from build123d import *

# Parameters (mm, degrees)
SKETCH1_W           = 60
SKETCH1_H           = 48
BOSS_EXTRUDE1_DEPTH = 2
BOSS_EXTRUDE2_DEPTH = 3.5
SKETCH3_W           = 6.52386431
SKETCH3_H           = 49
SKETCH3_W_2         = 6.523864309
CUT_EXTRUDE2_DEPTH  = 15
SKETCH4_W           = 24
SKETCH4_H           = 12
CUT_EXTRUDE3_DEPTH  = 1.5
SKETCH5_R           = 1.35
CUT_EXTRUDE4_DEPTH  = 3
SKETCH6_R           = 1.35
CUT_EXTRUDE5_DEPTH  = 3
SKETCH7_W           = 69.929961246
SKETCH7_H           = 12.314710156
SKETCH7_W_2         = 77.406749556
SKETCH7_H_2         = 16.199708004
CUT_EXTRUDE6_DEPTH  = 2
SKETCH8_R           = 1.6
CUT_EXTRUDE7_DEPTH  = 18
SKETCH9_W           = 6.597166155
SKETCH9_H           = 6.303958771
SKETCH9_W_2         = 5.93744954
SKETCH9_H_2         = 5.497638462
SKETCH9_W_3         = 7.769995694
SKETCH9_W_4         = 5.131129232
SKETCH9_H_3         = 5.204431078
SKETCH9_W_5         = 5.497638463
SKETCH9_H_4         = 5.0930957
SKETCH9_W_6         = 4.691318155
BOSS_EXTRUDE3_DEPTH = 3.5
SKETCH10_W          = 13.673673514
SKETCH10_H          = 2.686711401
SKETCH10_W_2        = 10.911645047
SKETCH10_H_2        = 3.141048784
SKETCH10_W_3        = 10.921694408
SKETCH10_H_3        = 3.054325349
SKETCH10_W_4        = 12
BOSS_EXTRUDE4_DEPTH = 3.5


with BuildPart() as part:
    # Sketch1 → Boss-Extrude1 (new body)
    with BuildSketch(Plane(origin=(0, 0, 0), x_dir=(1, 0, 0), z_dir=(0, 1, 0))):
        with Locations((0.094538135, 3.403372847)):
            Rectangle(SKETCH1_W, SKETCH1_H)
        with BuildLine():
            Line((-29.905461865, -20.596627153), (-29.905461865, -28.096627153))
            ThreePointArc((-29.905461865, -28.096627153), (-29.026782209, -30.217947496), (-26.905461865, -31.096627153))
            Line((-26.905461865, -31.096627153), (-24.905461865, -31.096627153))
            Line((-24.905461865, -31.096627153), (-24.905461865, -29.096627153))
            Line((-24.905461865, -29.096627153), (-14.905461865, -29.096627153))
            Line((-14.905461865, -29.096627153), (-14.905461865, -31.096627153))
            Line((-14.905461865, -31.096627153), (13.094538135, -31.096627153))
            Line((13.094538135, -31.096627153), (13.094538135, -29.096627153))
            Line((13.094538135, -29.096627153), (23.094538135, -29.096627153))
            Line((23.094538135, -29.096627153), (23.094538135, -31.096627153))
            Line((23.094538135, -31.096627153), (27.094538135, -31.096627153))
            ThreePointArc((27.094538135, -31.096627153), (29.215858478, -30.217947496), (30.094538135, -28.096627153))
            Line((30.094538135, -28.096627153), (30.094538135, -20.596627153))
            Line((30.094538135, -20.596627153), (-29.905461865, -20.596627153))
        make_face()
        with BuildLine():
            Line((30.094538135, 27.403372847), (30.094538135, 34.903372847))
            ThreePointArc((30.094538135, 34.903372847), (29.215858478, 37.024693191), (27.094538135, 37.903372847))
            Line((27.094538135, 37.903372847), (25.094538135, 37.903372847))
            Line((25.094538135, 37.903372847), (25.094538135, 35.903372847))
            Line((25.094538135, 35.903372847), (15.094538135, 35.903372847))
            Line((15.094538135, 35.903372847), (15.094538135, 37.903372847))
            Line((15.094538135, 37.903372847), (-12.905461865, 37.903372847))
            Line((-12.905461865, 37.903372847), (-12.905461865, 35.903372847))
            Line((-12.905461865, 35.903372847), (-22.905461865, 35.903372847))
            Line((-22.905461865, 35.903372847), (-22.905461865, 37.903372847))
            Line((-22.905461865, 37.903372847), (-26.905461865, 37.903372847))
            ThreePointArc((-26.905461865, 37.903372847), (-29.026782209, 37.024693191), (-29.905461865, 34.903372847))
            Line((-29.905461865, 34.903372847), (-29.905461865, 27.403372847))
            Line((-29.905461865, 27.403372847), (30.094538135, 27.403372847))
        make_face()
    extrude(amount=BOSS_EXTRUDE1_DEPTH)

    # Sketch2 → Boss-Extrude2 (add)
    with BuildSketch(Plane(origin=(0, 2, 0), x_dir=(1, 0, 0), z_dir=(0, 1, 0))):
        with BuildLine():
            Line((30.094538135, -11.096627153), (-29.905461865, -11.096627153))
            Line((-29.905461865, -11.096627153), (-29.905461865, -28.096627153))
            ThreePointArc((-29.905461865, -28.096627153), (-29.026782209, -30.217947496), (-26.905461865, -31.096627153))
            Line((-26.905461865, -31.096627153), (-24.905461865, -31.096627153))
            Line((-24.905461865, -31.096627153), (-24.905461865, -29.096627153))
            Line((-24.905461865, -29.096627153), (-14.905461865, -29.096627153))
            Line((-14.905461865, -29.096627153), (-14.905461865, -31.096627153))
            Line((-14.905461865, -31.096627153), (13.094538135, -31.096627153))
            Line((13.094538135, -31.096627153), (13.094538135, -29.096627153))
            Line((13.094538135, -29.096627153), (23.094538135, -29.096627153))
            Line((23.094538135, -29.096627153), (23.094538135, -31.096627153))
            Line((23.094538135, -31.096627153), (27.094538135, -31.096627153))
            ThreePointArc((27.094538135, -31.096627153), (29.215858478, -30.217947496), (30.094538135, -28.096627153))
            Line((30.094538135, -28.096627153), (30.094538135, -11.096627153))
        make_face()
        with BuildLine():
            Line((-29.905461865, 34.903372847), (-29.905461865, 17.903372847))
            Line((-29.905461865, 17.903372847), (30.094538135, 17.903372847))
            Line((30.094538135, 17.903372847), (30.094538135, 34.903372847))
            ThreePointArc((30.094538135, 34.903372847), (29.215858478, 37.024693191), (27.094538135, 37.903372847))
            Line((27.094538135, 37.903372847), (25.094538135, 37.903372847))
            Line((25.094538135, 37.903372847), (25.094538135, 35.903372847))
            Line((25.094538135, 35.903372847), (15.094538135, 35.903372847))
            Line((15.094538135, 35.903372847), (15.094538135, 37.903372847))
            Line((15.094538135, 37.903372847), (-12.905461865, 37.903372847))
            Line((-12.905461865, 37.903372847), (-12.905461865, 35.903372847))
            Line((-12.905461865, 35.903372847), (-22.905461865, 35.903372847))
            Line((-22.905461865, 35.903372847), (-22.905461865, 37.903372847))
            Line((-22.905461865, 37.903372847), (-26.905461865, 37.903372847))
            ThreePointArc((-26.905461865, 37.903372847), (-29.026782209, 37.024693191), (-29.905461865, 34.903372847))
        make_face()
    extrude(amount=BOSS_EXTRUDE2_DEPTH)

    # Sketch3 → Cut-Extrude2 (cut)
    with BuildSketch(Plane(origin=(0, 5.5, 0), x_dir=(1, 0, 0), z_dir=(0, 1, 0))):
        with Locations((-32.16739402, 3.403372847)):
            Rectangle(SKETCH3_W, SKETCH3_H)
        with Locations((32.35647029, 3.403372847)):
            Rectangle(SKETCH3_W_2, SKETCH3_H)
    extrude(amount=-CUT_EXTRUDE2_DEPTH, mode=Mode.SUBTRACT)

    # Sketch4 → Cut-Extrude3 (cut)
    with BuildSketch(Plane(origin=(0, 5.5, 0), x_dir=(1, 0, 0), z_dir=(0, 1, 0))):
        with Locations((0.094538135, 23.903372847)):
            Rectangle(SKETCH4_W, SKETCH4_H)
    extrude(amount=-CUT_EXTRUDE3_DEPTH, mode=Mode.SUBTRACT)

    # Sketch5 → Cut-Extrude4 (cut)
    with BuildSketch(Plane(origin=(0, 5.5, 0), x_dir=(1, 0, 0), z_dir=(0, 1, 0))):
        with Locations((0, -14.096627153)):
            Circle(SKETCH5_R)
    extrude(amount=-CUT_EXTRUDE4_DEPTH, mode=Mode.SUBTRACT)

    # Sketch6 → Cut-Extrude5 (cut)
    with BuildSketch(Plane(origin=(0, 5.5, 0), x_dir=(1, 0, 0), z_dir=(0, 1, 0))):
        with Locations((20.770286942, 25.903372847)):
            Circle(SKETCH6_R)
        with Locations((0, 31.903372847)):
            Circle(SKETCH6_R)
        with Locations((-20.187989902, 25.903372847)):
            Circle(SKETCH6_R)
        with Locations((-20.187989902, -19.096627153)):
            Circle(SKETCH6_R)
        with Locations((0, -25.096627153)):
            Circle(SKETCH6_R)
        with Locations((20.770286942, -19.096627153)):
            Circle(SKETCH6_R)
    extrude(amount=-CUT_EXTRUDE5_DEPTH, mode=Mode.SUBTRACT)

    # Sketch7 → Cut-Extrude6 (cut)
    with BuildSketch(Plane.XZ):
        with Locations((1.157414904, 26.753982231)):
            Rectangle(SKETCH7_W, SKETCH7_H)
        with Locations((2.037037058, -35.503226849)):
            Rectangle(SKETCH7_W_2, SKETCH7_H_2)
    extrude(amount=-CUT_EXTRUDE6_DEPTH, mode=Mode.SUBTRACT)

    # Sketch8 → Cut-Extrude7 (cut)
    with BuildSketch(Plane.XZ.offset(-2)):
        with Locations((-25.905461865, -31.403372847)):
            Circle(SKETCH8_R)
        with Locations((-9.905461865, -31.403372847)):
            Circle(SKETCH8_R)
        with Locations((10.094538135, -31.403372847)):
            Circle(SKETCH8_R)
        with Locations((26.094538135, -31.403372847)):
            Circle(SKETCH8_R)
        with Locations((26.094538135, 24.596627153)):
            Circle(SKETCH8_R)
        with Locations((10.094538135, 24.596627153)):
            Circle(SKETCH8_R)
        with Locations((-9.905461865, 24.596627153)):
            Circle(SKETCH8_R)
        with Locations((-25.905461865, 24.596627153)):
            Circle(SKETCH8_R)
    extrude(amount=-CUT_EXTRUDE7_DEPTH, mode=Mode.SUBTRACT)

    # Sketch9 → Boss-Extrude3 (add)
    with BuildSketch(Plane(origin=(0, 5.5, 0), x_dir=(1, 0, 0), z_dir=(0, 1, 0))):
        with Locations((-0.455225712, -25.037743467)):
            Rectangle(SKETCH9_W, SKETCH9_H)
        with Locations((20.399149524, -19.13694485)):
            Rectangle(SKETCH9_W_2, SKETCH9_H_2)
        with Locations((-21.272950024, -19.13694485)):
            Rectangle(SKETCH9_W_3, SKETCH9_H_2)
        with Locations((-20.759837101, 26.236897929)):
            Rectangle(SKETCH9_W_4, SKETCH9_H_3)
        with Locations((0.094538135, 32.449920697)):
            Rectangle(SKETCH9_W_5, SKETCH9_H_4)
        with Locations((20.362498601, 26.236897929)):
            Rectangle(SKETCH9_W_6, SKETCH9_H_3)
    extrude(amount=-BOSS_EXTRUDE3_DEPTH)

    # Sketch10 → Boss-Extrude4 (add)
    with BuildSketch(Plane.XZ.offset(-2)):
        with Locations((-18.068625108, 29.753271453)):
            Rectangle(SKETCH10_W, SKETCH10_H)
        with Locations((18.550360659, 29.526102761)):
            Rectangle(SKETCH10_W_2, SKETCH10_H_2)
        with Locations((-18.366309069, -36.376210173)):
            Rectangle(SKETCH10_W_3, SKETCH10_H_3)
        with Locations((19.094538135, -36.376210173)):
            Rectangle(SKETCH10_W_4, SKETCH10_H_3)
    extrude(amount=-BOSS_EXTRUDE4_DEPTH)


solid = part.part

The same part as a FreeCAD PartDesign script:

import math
import FreeCAD as App
import Part
import Sketcher

V = App.Vector
Q = App.Units.Quantity

doc = App.newDocument("Part")
body = doc.addObject("PartDesign::Body", "Body")

# Sketch on XZ plane
sketch1 = body.newObject("Sketcher::SketchObject", "Sketch")
sketch1.AttachmentSupport = (doc.getObject("XZ_Plane"), [""])
sketch1.MapMode = "FlatFace"
sketch1.addGeometry(Part.ArcOfCircle(Part.Circle(V(-26.9, 28.1, 0), V(0, 0, 1), 3), math.radians(90), math.radians(180)), False)
sketch1.addGeometry(Part.LineSegment(V(-26.9, 31.1, 0), V(-24.9, 31.1, 0)), False)
sketch1.addGeometry(Part.LineSegment(V(-24.9, 31.1, 0), V(-24.9, 29.1, 0)), False)
sketch1.addGeometry(Part.LineSegment(V(-24.9, 29.1, 0), V(-14.9, 29.1, 0)), False)
sketch1.addGeometry(Part.LineSegment(V(-14.9, 29.1, 0), V(-14.9, 31.1, 0)), False)
sketch1.addGeometry(Part.LineSegment(V(-14.9, 31.1, 0), V(13.1, 31.1, 0)), False)
sketch1.addGeometry(Part.LineSegment(V(13.1, 31.1, 0), V(13.1, 29.1, 0)), False)
sketch1.addGeometry(Part.LineSegment(V(13.1, 29.1, 0), V(23.1, 29.1, 0)), False)
sketch1.addGeometry(Part.LineSegment(V(23.1, 29.1, 0), V(23.1, 31.1, 0)), False)
sketch1.addGeometry(Part.LineSegment(V(23.1, 31.1, 0), V(27.1, 31.1, 0)), False)
sketch1.addGeometry(Part.ArcOfCircle(Part.Circle(V(27.1, 28.1, 0), V(0, 0, 1), 3), math.radians(0), math.radians(90)), False)
sketch1.addGeometry(Part.LineSegment(V(30.1, 28.1, 0), V(30.1, -34.9, 0)), False)
sketch1.addGeometry(Part.ArcOfCircle(Part.Circle(V(27.1, -34.9, 0), V(0, 0, 1), 3), math.radians(-90), math.radians(0)), False)
sketch1.addGeometry(Part.LineSegment(V(27.1, -37.9, 0), V(25.1, -37.9, 0)), False)
sketch1.addGeometry(Part.LineSegment(V(25.1, -37.9, 0), V(25.1, -35.9, 0)), False)
sketch1.addGeometry(Part.LineSegment(V(25.1, -35.9, 0), V(15.1, -35.9, 0)), False)
sketch1.addGeometry(Part.LineSegment(V(15.1, -35.9, 0), V(15.1, -37.9, 0)), False)
sketch1.addGeometry(Part.LineSegment(V(15.1, -37.9, 0), V(-12.9, -37.9, 0)), False)
sketch1.addGeometry(Part.LineSegment(V(-12.9, -37.9, 0), V(-12.9, -35.9, 0)), False)
sketch1.addGeometry(Part.LineSegment(V(-12.9, -35.9, 0), V(-22.9, -35.9, 0)), False)
sketch1.addGeometry(Part.LineSegment(V(-22.9, -35.9, 0), V(-22.9, -37.9, 0)), False)
sketch1.addGeometry(Part.LineSegment(V(-22.9, -37.9, 0), V(-26.9, -37.9, 0)), False)
sketch1.addGeometry(Part.ArcOfCircle(Part.Circle(V(-26.9, -34.9, 0), V(0, 0, 1), 3), math.radians(180), math.radians(270)), False)
sketch1.addGeometry(Part.LineSegment(V(-29.9, -34.9, 0), V(-29.9, 28.1, 0)), False)
sketch1.addConstraint(Sketcher.Constraint("Tangent", 0, 1, 1, 1))
sketch1.addConstraint(Sketcher.Constraint("Coincident", 1, 2, 2, 1))
sketch1.addConstraint(Sketcher.Constraint("Coincident", 2, 2, 3, 1))
sketch1.addConstraint(Sketcher.Constraint("Coincident", 3, 2, 4, 1))
sketch1.addConstraint(Sketcher.Constraint("Coincident", 4, 2, 5, 1))
sketch1.addConstraint(Sketcher.Constraint("Coincident", 5, 2, 6, 1))
sketch1.addConstraint(Sketcher.Constraint("Coincident", 6, 2, 7, 1))
sketch1.addConstraint(Sketcher.Constraint("Coincident", 7, 2, 8, 1))
sketch1.addConstraint(Sketcher.Constraint("Coincident", 8, 2, 9, 1))
sketch1.addConstraint(Sketcher.Constraint("Tangent", 9, 2, 10, 2))
sketch1.addConstraint(Sketcher.Constraint("Tangent", 10, 1, 11, 1))
sketch1.addConstraint(Sketcher.Constraint("Tangent", 11, 2, 12, 2))
sketch1.addConstraint(Sketcher.Constraint("Tangent", 12, 1, 13, 1))
sketch1.addConstraint(Sketcher.Constraint("Coincident", 13, 2, 14, 1))
sketch1.addConstraint(Sketcher.Constraint("Coincident", 14, 2, 15, 1))
sketch1.addConstraint(Sketcher.Constraint("Coincident", 15, 2, 16, 1))
sketch1.addConstraint(Sketcher.Constraint("Coincident", 16, 2, 17, 1))
sketch1.addConstraint(Sketcher.Constraint("Coincident", 17, 2, 18, 1))
sketch1.addConstraint(Sketcher.Constraint("Coincident", 18, 2, 19, 1))
sketch1.addConstraint(Sketcher.Constraint("Coincident", 19, 2, 20, 1))
sketch1.addConstraint(Sketcher.Constraint("Coincident", 20, 2, 21, 1))
sketch1.addConstraint(Sketcher.Constraint("Tangent", 21, 2, 22, 2))
sketch1.addConstraint(Sketcher.Constraint("Tangent", 22, 1, 23, 1))
sketch1.addConstraint(Sketcher.Constraint("Tangent", 23, 2, 0, 2))
sketch1.addConstraint(Sketcher.Constraint("Horizontal", 1))
sketch1.addConstraint(Sketcher.Constraint("Vertical", 2))
sketch1.addConstraint(Sketcher.Constraint("Horizontal", 3))
sketch1.addConstraint(Sketcher.Constraint("Vertical", 4))
sketch1.addConstraint(Sketcher.Constraint("Horizontal", 5))
sketch1.addConstraint(Sketcher.Constraint("Vertical", 6))
sketch1.addConstraint(Sketcher.Constraint("Horizontal", 7))
sketch1.addConstraint(Sketcher.Constraint("Vertical", 8))
sketch1.addConstraint(Sketcher.Constraint("Horizontal", 9))
sketch1.addConstraint(Sketcher.Constraint("Vertical", 11))
sketch1.addConstraint(Sketcher.Constraint("Horizontal", 13))
sketch1.addConstraint(Sketcher.Constraint("Vertical", 14))
sketch1.addConstraint(Sketcher.Constraint("Horizontal", 15))
sketch1.addConstraint(Sketcher.Constraint("Vertical", 16))
sketch1.addConstraint(Sketcher.Constraint("Horizontal", 17))
sketch1.addConstraint(Sketcher.Constraint("Vertical", 18))
sketch1.addConstraint(Sketcher.Constraint("Horizontal", 19))
sketch1.addConstraint(Sketcher.Constraint("Vertical", 20))
sketch1.addConstraint(Sketcher.Constraint("Horizontal", 21))
sketch1.addConstraint(Sketcher.Constraint("Vertical", 23))
sketch1.addConstraint(Sketcher.Constraint("Equal", 0, 10))
sketch1.addConstraint(Sketcher.Constraint("Equal", 10, 12))
sketch1.addConstraint(Sketcher.Constraint("Equal", 12, 22))
sketch1.addConstraint(Sketcher.Constraint("Horizontal", 0, 3, 10, 3))
sketch1.addConstraint(Sketcher.Constraint("Horizontal", 12, 3, 22, 3))
sketch1.addConstraint(Sketcher.Constraint("Horizontal", 1, 2, 4, 2))
sketch1.addConstraint(Sketcher.Constraint("Horizontal", 3, 2, 6, 2))
sketch1.addConstraint(Sketcher.Constraint("Horizontal", 13, 2, 16, 2))
sketch1.addConstraint(Sketcher.Constraint("Horizontal", 15, 2, 18, 2))
sketch1.addConstraint(Sketcher.Constraint("Equal", 3, 7))
sketch1.addConstraint(Sketcher.Constraint("Equal", 1, 13))
sketch1.addConstraint(Sketcher.Constraint("Equal", 7, 15))
sketch1.addConstraint(Sketcher.Constraint("Equal", 5, 17))
sketch1.addConstraint(Sketcher.Constraint("Equal", 15, 19))
sketch1.addConstraint(Sketcher.Constraint("Equal", 13, 2))
sketch1.addConstraint(Sketcher.Constraint("Equal", 8, 14))
sketch1.addConstraint(Sketcher.Constraint("Radius", 0, Q("3 mm")))
sketch1.addConstraint(Sketcher.Constraint("DistanceX", 1, 1, 1, 2, Q("2 mm")))
sketch1.addConstraint(Sketcher.Constraint("DistanceX", 3, 1, 3, 2, Q("10 mm")))
sketch1.addConstraint(Sketcher.Constraint("DistanceX", 5, 1, 5, 2, Q("28 mm")))
sketch1.addConstraint(Sketcher.Constraint("DistanceX", 9, 1, 9, 2, Q("4 mm")))
sketch1.addConstraint(Sketcher.Constraint("DistanceY", 11, 2, 11, 1, Q("63 mm")))
sketch1.addConstraint(Sketcher.Constraint("DistanceX", 0, 3, -1, 1, Q("26.905462 mm")))
sketch1.addConstraint(Sketcher.Constraint("DistanceY", -1, 1, 0, 3, Q("28.096627 mm")))
pad1 = body.newObject("PartDesign::Pad", "Pad")
pad1.Profile = sketch1
pad1.Length = 2
pad1.Reversed = True

# Sketch on XZ plane
sketch2 = body.newObject("Sketcher::SketchObject", "Sketch001")
sketch2.AttachmentSupport = (doc.getObject("XZ_Plane"), [""])
sketch2.MapMode = "FlatFace"
sketch2.AttachmentOffset = App.Placement(V(0, 0, -2), App.Rotation())
sketch2.addGeometry(Part.LineSegment(V(30.1, 11.1, 0), V(-29.9, 11.1, 0)), False)
sketch2.addGeometry(Part.LineSegment(V(-29.9, 11.1, 0), V(-29.9, 28.1, 0)), False)
sketch2.addGeometry(Part.ArcOfCircle(Part.Circle(V(-26.9, 28.1, 0), V(0, 0, 1), 3), math.radians(90), math.radians(180)), False)
sketch2.addGeometry(Part.LineSegment(V(-26.9, 31.1, 0), V(-24.9, 31.1, 0)), False)
sketch2.addGeometry(Part.LineSegment(V(-24.9, 31.1, 0), V(-24.9, 29.1, 0)), False)
sketch2.addGeometry(Part.LineSegment(V(-24.9, 29.1, 0), V(-14.9, 29.1, 0)), False)
sketch2.addGeometry(Part.LineSegment(V(-14.9, 29.1, 0), V(-14.9, 31.1, 0)), False)
sketch2.addGeometry(Part.LineSegment(V(-14.9, 31.1, 0), V(13.1, 31.1, 0)), False)
sketch2.addGeometry(Part.LineSegment(V(13.1, 31.1, 0), V(13.1, 29.1, 0)), False)
sketch2.addGeometry(Part.LineSegment(V(13.1, 29.1, 0), V(23.1, 29.1, 0)), False)
sketch2.addGeometry(Part.LineSegment(V(23.1, 29.1, 0), V(23.1, 31.1, 0)), False)
sketch2.addGeometry(Part.LineSegment(V(23.1, 31.1, 0), V(27.1, 31.1, 0)), False)
sketch2.addGeometry(Part.ArcOfCircle(Part.Circle(V(27.1, 28.1, 0), V(0, 0, 1), 3), math.radians(0), math.radians(90)), False)
sketch2.addGeometry(Part.LineSegment(V(30.1, 28.1, 0), V(30.1, 11.1, 0)), False)
sketch2.addGeometry(Part.LineSegment(V(-29.9, -34.9, 0), V(-29.9, -17.9, 0)), False)
sketch2.addGeometry(Part.LineSegment(V(-29.9, -17.9, 0), V(30.1, -17.9, 0)), False)
sketch2.addGeometry(Part.LineSegment(V(30.1, -17.9, 0), V(30.1, -34.9, 0)), False)
sketch2.addGeometry(Part.ArcOfCircle(Part.Circle(V(27.1, -34.9, 0), V(0, 0, 1), 3), math.radians(-90), math.radians(0)), False)
sketch2.addGeometry(Part.LineSegment(V(27.1, -37.9, 0), V(25.1, -37.9, 0)), False)
sketch2.addGeometry(Part.LineSegment(V(25.1, -37.9, 0), V(25.1, -35.9, 0)), False)
sketch2.addGeometry(Part.LineSegment(V(25.1, -35.9, 0), V(15.1, -35.9, 0)), False)
sketch2.addGeometry(Part.LineSegment(V(15.1, -35.9, 0), V(15.1, -37.9, 0)), False)
sketch2.addGeometry(Part.LineSegment(V(15.1, -37.9, 0), V(-12.9, -37.9, 0)), False)
sketch2.addGeometry(Part.LineSegment(V(-12.9, -37.9, 0), V(-12.9, -35.9, 0)), False)
sketch2.addGeometry(Part.LineSegment(V(-12.9, -35.9, 0), V(-22.9, -35.9, 0)), False)
sketch2.addGeometry(Part.LineSegment(V(-22.9, -35.9, 0), V(-22.9, -37.9, 0)), False)
sketch2.addGeometry(Part.LineSegment(V(-22.9, -37.9, 0), V(-26.9, -37.9, 0)), False)
sketch2.addGeometry(Part.ArcOfCircle(Part.Circle(V(-26.9, -34.9, 0), V(0, 0, 1), 3), math.radians(180), math.radians(270)), False)
sketch2.addConstraint(Sketcher.Constraint("Coincident", 0, 2, 1, 1))
sketch2.addConstraint(Sketcher.Constraint("Tangent", 1, 2, 2, 2))
sketch2.addConstraint(Sketcher.Constraint("Tangent", 2, 1, 3, 1))
sketch2.addConstraint(Sketcher.Constraint("Coincident", 3, 2, 4, 1))
sketch2.addConstraint(Sketcher.Constraint("Coincident", 4, 2, 5, 1))
sketch2.addConstraint(Sketcher.Constraint("Coincident", 5, 2, 6, 1))
sketch2.addConstraint(Sketcher.Constraint("Coincident", 6, 2, 7, 1))
sketch2.addConstraint(Sketcher.Constraint("Coincident", 7, 2, 8, 1))
sketch2.addConstraint(Sketcher.Constraint("Coincident", 8, 2, 9, 1))
sketch2.addConstraint(Sketcher.Constraint("Coincident", 9, 2, 10, 1))
sketch2.addConstraint(Sketcher.Constraint("Coincident", 10, 2, 11, 1))
sketch2.addConstraint(Sketcher.Constraint("Tangent", 11, 2, 12, 2))
sketch2.addConstraint(Sketcher.Constraint("Tangent", 12, 1, 13, 1))
sketch2.addConstraint(Sketcher.Constraint("Coincident", 13, 2, 0, 1))
sketch2.addConstraint(Sketcher.Constraint("Coincident", 14, 2, 15, 1))
sketch2.addConstraint(Sketcher.Constraint("Coincident", 15, 2, 16, 1))
sketch2.addConstraint(Sketcher.Constraint("Tangent", 16, 2, 17, 2))
sketch2.addConstraint(Sketcher.Constraint("Tangent", 17, 1, 18, 1))
sketch2.addConstraint(Sketcher.Constraint("Coincident", 18, 2, 19, 1))
sketch2.addConstraint(Sketcher.Constraint("Coincident", 19, 2, 20, 1))
sketch2.addConstraint(Sketcher.Constraint("Coincident", 20, 2, 21, 1))
sketch2.addConstraint(Sketcher.Constraint("Coincident", 21, 2, 22, 1))
sketch2.addConstraint(Sketcher.Constraint("Coincident", 22, 2, 23, 1))
sketch2.addConstraint(Sketcher.Constraint("Coincident", 23, 2, 24, 1))
sketch2.addConstraint(Sketcher.Constraint("Coincident", 24, 2, 25, 1))
sketch2.addConstraint(Sketcher.Constraint("Coincident", 25, 2, 26, 1))
sketch2.addConstraint(Sketcher.Constraint("Tangent", 26, 2, 27, 2))
sketch2.addConstraint(Sketcher.Constraint("Tangent", 27, 1, 14, 1))
sketch2.addConstraint(Sketcher.Constraint("Horizontal", 0))
sketch2.addConstraint(Sketcher.Constraint("Vertical", 1))
sketch2.addConstraint(Sketcher.Constraint("Horizontal", 3))
sketch2.addConstraint(Sketcher.Constraint("Vertical", 4))
sketch2.addConstraint(Sketcher.Constraint("Horizontal", 5))
sketch2.addConstraint(Sketcher.Constraint("Vertical", 6))
sketch2.addConstraint(Sketcher.Constraint("Horizontal", 7))
sketch2.addConstraint(Sketcher.Constraint("Vertical", 8))
sketch2.addConstraint(Sketcher.Constraint("Horizontal", 9))
sketch2.addConstraint(Sketcher.Constraint("Vertical", 10))
sketch2.addConstraint(Sketcher.Constraint("Horizontal", 11))
sketch2.addConstraint(Sketcher.Constraint("Vertical", 13))
sketch2.addConstraint(Sketcher.Constraint("Vertical", 14))
sketch2.addConstraint(Sketcher.Constraint("Horizontal", 15))
sketch2.addConstraint(Sketcher.Constraint("Vertical", 16))
sketch2.addConstraint(Sketcher.Constraint("Horizontal", 18))
sketch2.addConstraint(Sketcher.Constraint("Vertical", 19))
sketch2.addConstraint(Sketcher.Constraint("Horizontal", 20))
sketch2.addConstraint(Sketcher.Constraint("Vertical", 21))
sketch2.addConstraint(Sketcher.Constraint("Horizontal", 22))
sketch2.addConstraint(Sketcher.Constraint("Vertical", 23))
sketch2.addConstraint(Sketcher.Constraint("Horizontal", 24))
sketch2.addConstraint(Sketcher.Constraint("Vertical", 25))
sketch2.addConstraint(Sketcher.Constraint("Horizontal", 26))
sketch2.addConstraint(Sketcher.Constraint("Equal", 2, 12))
sketch2.addConstraint(Sketcher.Constraint("Equal", 12, 17))
sketch2.addConstraint(Sketcher.Constraint("Equal", 17, 27))
sketch2.addConstraint(Sketcher.Constraint("Horizontal", 2, 3, 12, 3))
sketch2.addConstraint(Sketcher.Constraint("Horizontal", 17, 3, 27, 3))
sketch2.addConstraint(Sketcher.Constraint("Horizontal", 3, 2, 6, 2))
sketch2.addConstraint(Sketcher.Constraint("Horizontal", 5, 2, 8, 2))
sketch2.addConstraint(Sketcher.Constraint("Horizontal", 18, 2, 21, 2))
sketch2.addConstraint(Sketcher.Constraint("Horizontal", 20, 2, 23, 2))
sketch2.addConstraint(Sketcher.Constraint("Vertical", 12, 3, 17, 3))
sketch2.addConstraint(Sketcher.Constraint("Vertical", 2, 3, 27, 3))
sketch2.addConstraint(Sketcher.Constraint("Equal", 5, 9))
sketch2.addConstraint(Sketcher.Constraint("Equal", 3, 18))
sketch2.addConstraint(Sketcher.Constraint("Equal", 9, 20))
sketch2.addConstraint(Sketcher.Constraint("Equal", 7, 22))
sketch2.addConstraint(Sketcher.Constraint("Equal", 20, 24))
sketch2.addConstraint(Sketcher.Constraint("Equal", 18, 4))
sketch2.addConstraint(Sketcher.Constraint("Equal", 13, 14))
sketch2.addConstraint(Sketcher.Constraint("Equal", 10, 19))
sketch2.addConstraint(Sketcher.Constraint("Radius", 2, Q("3 mm")))
sketch2.addConstraint(Sketcher.Constraint("DistanceX", 0, 2, 0, 1, Q("60 mm")))
sketch2.addConstraint(Sketcher.Constraint("DistanceX", 3, 1, 3, 2, Q("2 mm")))
sketch2.addConstraint(Sketcher.Constraint("DistanceX", 5, 1, 5, 2, Q("10 mm")))
sketch2.addConstraint(Sketcher.Constraint("DistanceX", 7, 1, 7, 2, Q("28 mm")))
sketch2.addConstraint(Sketcher.Constraint("DistanceY", 1, 1, 1, 2, Q("17 mm")))
sketch2.addConstraint(Sketcher.Constraint("DistanceY", 17, 3, 12, 3, Q("63 mm")))
sketch2.addConstraint(Sketcher.Constraint("DistanceX", 2, 3, -1, 1, Q("26.905462 mm")))
sketch2.addConstraint(Sketcher.Constraint("DistanceY", -1, 1, 2, 3, Q("28.096627 mm")))
pad2 = body.newObject("PartDesign::Pad", "Pad001")
pad2.Profile = sketch2
pad2.Length = 3.5
pad2.Reversed = True

# Sketch on XZ plane
sketch3 = body.newObject("Sketcher::SketchObject", "Sketch002")
sketch3.AttachmentSupport = (doc.getObject("XZ_Plane"), [""])
sketch3.MapMode = "FlatFace"
sketch3.AttachmentOffset = App.Placement(V(0, 0, -5.5), App.Rotation())
sketch3.addGeometry(Part.LineSegment(V(-35, -28, 0), V(-35, 21, 0)), False)
sketch3.addGeometry(Part.LineSegment(V(-35, 21, 0), V(-29, 21, 0)), False)
sketch3.addGeometry(Part.LineSegment(V(-29, 21, 0), V(-29, -28, 0)), False)
sketch3.addGeometry(Part.LineSegment(V(-29, -28, 0), V(-35, -28, 0)), False)
sketch3.addGeometry(Part.LineSegment(V(29, -28, 0), V(29, 21, 0)), False)
sketch3.addGeometry(Part.LineSegment(V(29, 21, 0), V(36, 21, 0)), False)
sketch3.addGeometry(Part.LineSegment(V(36, 21, 0), V(36, -28, 0)), False)
sketch3.addGeometry(Part.LineSegment(V(36, -28, 0), V(29, -28, 0)), False)
sketch3.addConstraint(Sketcher.Constraint("Coincident", 0, 2, 1, 1))
sketch3.addConstraint(Sketcher.Constraint("Coincident", 1, 2, 2, 1))
sketch3.addConstraint(Sketcher.Constraint("Coincident", 2, 2, 3, 1))
sketch3.addConstraint(Sketcher.Constraint("Coincident", 3, 2, 0, 1))
sketch3.addConstraint(Sketcher.Constraint("Coincident", 4, 2, 5, 1))
sketch3.addConstraint(Sketcher.Constraint("Coincident", 5, 2, 6, 1))
sketch3.addConstraint(Sketcher.Constraint("Coincident", 6, 2, 7, 1))
sketch3.addConstraint(Sketcher.Constraint("Coincident", 7, 2, 4, 1))
sketch3.addConstraint(Sketcher.Constraint("Vertical", 0))
sketch3.addConstraint(Sketcher.Constraint("Horizontal", 1))
sketch3.addConstraint(Sketcher.Constraint("Vertical", 2))
sketch3.addConstraint(Sketcher.Constraint("Horizontal", 3))
sketch3.addConstraint(Sketcher.Constraint("Vertical", 4))
sketch3.addConstraint(Sketcher.Constraint("Horizontal", 5))
sketch3.addConstraint(Sketcher.Constraint("Vertical", 6))
sketch3.addConstraint(Sketcher.Constraint("Horizontal", 7))
sketch3.addConstraint(Sketcher.Constraint("Horizontal", 1, 2, 4, 2))
sketch3.addConstraint(Sketcher.Constraint("Horizontal", 3, 2, 6, 2))
sketch3.addConstraint(Sketcher.Constraint("Equal", 3, 5))
sketch3.addConstraint(Sketcher.Constraint("DistanceY", 0, 1, 0, 2, Q("49 mm")))
sketch3.addConstraint(Sketcher.Constraint("DistanceX", 1, 2, 4, 2, Q("58 mm")))
sketch3.addConstraint(Sketcher.Constraint("DistanceX", 1, 1, 1, 2, Q("6.523864 mm")))
sketch3.addConstraint(Sketcher.Constraint("DistanceX", 1, 2, -1, 1, Q("28.905462 mm")))
sketch3.addConstraint(Sketcher.Constraint("DistanceY", -1, 1, 0, 2, Q("21.096627 mm")))
pocket1 = body.newObject("PartDesign::Pocket", "Pocket")
pocket1.Profile = sketch3
pocket1.Length = 15
pocket1.Reversed = True

# Sketch on XZ plane
sketch4 = body.newObject("Sketcher::SketchObject", "Sketch003")
sketch4.AttachmentSupport = (doc.getObject("XZ_Plane"), [""])
sketch4.MapMode = "FlatFace"
sketch4.AttachmentOffset = App.Placement(V(0, 0, -5.5), App.Rotation())
sketch4.addGeometry(Part.LineSegment(V(-12, -30, 0), V(-12, -18, 0)), False)
sketch4.addGeometry(Part.LineSegment(V(-12, -18, 0), V(12, -18, 0)), False)
sketch4.addGeometry(Part.LineSegment(V(12, -18, 0), V(12, -30, 0)), False)
sketch4.addGeometry(Part.LineSegment(V(12, -30, 0), V(-12, -30, 0)), False)
sketch4.addConstraint(Sketcher.Constraint("Coincident", 0, 2, 1, 1))
sketch4.addConstraint(Sketcher.Constraint("Coincident", 1, 2, 2, 1))
sketch4.addConstraint(Sketcher.Constraint("Coincident", 2, 2, 3, 1))
sketch4.addConstraint(Sketcher.Constraint("Coincident", 3, 2, 0, 1))
sketch4.addConstraint(Sketcher.Constraint("Vertical", 0))
sketch4.addConstraint(Sketcher.Constraint("Horizontal", 1))
sketch4.addConstraint(Sketcher.Constraint("Vertical", 2))
sketch4.addConstraint(Sketcher.Constraint("Horizontal", 3))
sketch4.addConstraint(Sketcher.Constraint("DistanceX", 1, 1, 1, 2, Q("24 mm")))
sketch4.addConstraint(Sketcher.Constraint("DistanceY", 0, 1, 0, 2, Q("12 mm")))
sketch4.addConstraint(Sketcher.Constraint("DistanceX", 0, 2, -1, 1, Q("11.905462 mm")))
sketch4.addConstraint(Sketcher.Constraint("DistanceY", 0, 2, -1, 1, Q("17.903373 mm")))
pocket2 = body.newObject("PartDesign::Pocket", "Pocket001")
pocket2.Profile = sketch4
pocket2.Length = 1.5
pocket2.Reversed = True

# Sketch on XZ plane
sketch5 = body.newObject("Sketcher::SketchObject", "Sketch004")
sketch5.AttachmentSupport = (doc.getObject("XZ_Plane"), [""])
sketch5.MapMode = "FlatFace"
sketch5.AttachmentOffset = App.Placement(V(0, 0, -5.5), App.Rotation())
sketch5.addGeometry(Part.Circle(V(0, 14.1, 0), V(0, 0, 1), 1.4), False)
sketch5.addConstraint(Sketcher.Constraint("PointOnObject", 0, 3, -2))
sketch5.addConstraint(Sketcher.Constraint("Diameter", 0, Q("2.7 mm")))
sketch5.addConstraint(Sketcher.Constraint("DistanceY", -1, 1, 0, 3, Q("14.096627 mm")))
pocket3 = body.newObject("PartDesign::Pocket", "Pocket002")
pocket3.Profile = sketch5
pocket3.Length = 3
pocket3.Reversed = True

# Sketch on XZ plane
sketch6 = body.newObject("Sketcher::SketchObject", "Sketch005")
sketch6.AttachmentSupport = (doc.getObject("XZ_Plane"), [""])
sketch6.MapMode = "FlatFace"
sketch6.AttachmentOffset = App.Placement(V(0, 0, -5.5), App.Rotation())
sketch6.addGeometry(Part.Circle(V(20.8, -25.9, 0), V(0, 0, 1), 1.4), False)
sketch6.addGeometry(Part.Circle(V(0, -31.9, 0), V(0, 0, 1), 1.4), False)
sketch6.addGeometry(Part.Circle(V(-20.2, -25.9, 0), V(0, 0, 1), 1.4), False)
sketch6.addGeometry(Part.Circle(V(-20.2, 19.1, 0), V(0, 0, 1), 1.4), False)
sketch6.addGeometry(Part.Circle(V(0, 25.1, 0), V(0, 0, 1), 1.4), False)
sketch6.addGeometry(Part.Circle(V(20.8, 19.1, 0), V(0, 0, 1), 1.4), False)
sketch6.addConstraint(Sketcher.Constraint("Equal", 0, 1))
sketch6.addConstraint(Sketcher.Constraint("Equal", 1, 2))
sketch6.addConstraint(Sketcher.Constraint("Equal", 2, 3))
sketch6.addConstraint(Sketcher.Constraint("Equal", 3, 4))
sketch6.addConstraint(Sketcher.Constraint("Equal", 4, 5))
sketch6.addConstraint(Sketcher.Constraint("PointOnObject", 1, 3, -2))
sketch6.addConstraint(Sketcher.Constraint("PointOnObject", 4, 3, -2))
sketch6.addConstraint(Sketcher.Constraint("Horizontal", 0, 3, 2, 3))
sketch6.addConstraint(Sketcher.Constraint("Horizontal", 3, 3, 5, 3))
sketch6.addConstraint(Sketcher.Constraint("Vertical", 2, 3, 3, 3))
sketch6.addConstraint(Sketcher.Constraint("Vertical", 0, 3, 5, 3))
sketch6.addConstraint(Sketcher.Constraint("Diameter", 0, Q("2.7 mm")))
sketch6.addConstraint(Sketcher.Constraint("DistanceY", 1, 3, 0, 3, Q("6 mm")))
sketch6.addConstraint(Sketcher.Constraint("DistanceY", 2, 3, 3, 3, Q("45 mm")))
sketch6.addConstraint(Sketcher.Constraint("DistanceY", 3, 3, 4, 3, Q("6 mm")))
sketch6.addConstraint(Sketcher.Constraint("DistanceX", 2, 3, -1, 1, Q("20.18799 mm")))
sketch6.addConstraint(Sketcher.Constraint("DistanceX", -1, 1, 0, 3, Q("20.770287 mm")))
sketch6.addConstraint(Sketcher.Constraint("DistanceY", 0, 3, -1, 1, Q("25.903373 mm")))
pocket4 = body.newObject("PartDesign::Pocket", "Pocket003")
pocket4.Profile = sketch6
pocket4.Length = 3
pocket4.Reversed = True

# Sketch on XZ plane
sketch7 = body.newObject("Sketcher::SketchObject", "Sketch006")
sketch7.AttachmentSupport = (doc.getObject("XZ_Plane"), [""])
sketch7.MapMode = "FlatFace"
sketch7.addGeometry(Part.LineSegment(V(-34, 33, 0), V(-34, 21, 0)), False)
sketch7.addGeometry(Part.LineSegment(V(-34, 21, 0), V(36, 21, 0)), False)
sketch7.addGeometry(Part.LineSegment(V(36, 21, 0), V(36, 33, 0)), False)
sketch7.addGeometry(Part.LineSegment(V(36, 33, 0), V(-34, 33, 0)), False)
sketch7.addGeometry(Part.LineSegment(V(-37, -27, 0), V(-37, -44, 0)), False)
sketch7.addGeometry(Part.LineSegment(V(-37, -44, 0), V(41, -44, 0)), False)
sketch7.addGeometry(Part.LineSegment(V(41, -44, 0), V(41, -27, 0)), False)
sketch7.addGeometry(Part.LineSegment(V(41, -27, 0), V(-37, -27, 0)), False)
sketch7.addConstraint(Sketcher.Constraint("Coincident", 0, 2, 1, 1))
sketch7.addConstraint(Sketcher.Constraint("Coincident", 1, 2, 2, 1))
sketch7.addConstraint(Sketcher.Constraint("Coincident", 2, 2, 3, 1))
sketch7.addConstraint(Sketcher.Constraint("Coincident", 3, 2, 0, 1))
sketch7.addConstraint(Sketcher.Constraint("Coincident", 4, 2, 5, 1))
sketch7.addConstraint(Sketcher.Constraint("Coincident", 5, 2, 6, 1))
sketch7.addConstraint(Sketcher.Constraint("Coincident", 6, 2, 7, 1))
sketch7.addConstraint(Sketcher.Constraint("Coincident", 7, 2, 4, 1))
sketch7.addConstraint(Sketcher.Constraint("Vertical", 0))
sketch7.addConstraint(Sketcher.Constraint("Horizontal", 1))
sketch7.addConstraint(Sketcher.Constraint("Vertical", 2))
sketch7.addConstraint(Sketcher.Constraint("Horizontal", 3))
sketch7.addConstraint(Sketcher.Constraint("Vertical", 4))
sketch7.addConstraint(Sketcher.Constraint("Horizontal", 5))
sketch7.addConstraint(Sketcher.Constraint("Vertical", 6))
sketch7.addConstraint(Sketcher.Constraint("Horizontal", 7))
sketch7.addConstraint(Sketcher.Constraint("DistanceY", 6, 2, 1, 2, Q("48 mm")))
sketch7.addConstraint(Sketcher.Constraint("DistanceX", 1, 1, 1, 2, Q("69.929961 mm")))
sketch7.addConstraint(Sketcher.Constraint("DistanceX", 5, 1, 5, 2, Q("77.40675 mm")))
sketch7.addConstraint(Sketcher.Constraint("DistanceY", 0, 2, 0, 1, Q("12.31471 mm")))
sketch7.addConstraint(Sketcher.Constraint("DistanceY", 4, 2, 4, 1, Q("16.199708 mm")))
sketch7.addConstraint(Sketcher.Constraint("DistanceY", 4, 2, -1, 1, Q("43.603081 mm")))
sketch7.addConstraint(Sketcher.Constraint("DistanceX", -1, 1, 5, 2, Q("40.740412 mm")))
sketch7.addConstraint(Sketcher.Constraint("DistanceX", 0, 2, -1, 1, Q("33.807566 mm")))
pocket5 = body.newObject("PartDesign::Pocket", "Pocket004")
pocket5.Profile = sketch7
pocket5.Length = 2

# Sketch on XZ plane
sketch8 = body.newObject("Sketcher::SketchObject", "Sketch007")
sketch8.AttachmentSupport = (doc.getObject("XZ_Plane"), [""])
sketch8.MapMode = "FlatFace"
sketch8.AttachmentOffset = App.Placement(V(0, 0, -2), App.Rotation())
sketch8.addGeometry(Part.Circle(V(-25.9, -31.4, 0), V(0, 0, 1), 1.6), False)
sketch8.addGeometry(Part.Circle(V(-9.9, -31.4, 0), V(0, 0, 1), 1.6), False)
sketch8.addGeometry(Part.Circle(V(10.1, -31.4, 0), V(0, 0, 1), 1.6), False)
sketch8.addGeometry(Part.Circle(V(26.1, -31.4, 0), V(0, 0, 1), 1.6), False)
sketch8.addGeometry(Part.Circle(V(26.1, 24.6, 0), V(0, 0, 1), 1.6), False)
sketch8.addGeometry(Part.Circle(V(10.1, 24.6, 0), V(0, 0, 1), 1.6), False)
sketch8.addGeometry(Part.Circle(V(-9.9, 24.6, 0), V(0, 0, 1), 1.6), False)
sketch8.addGeometry(Part.Circle(V(-25.9, 24.6, 0), V(0, 0, 1), 1.6), False)
sketch8.addConstraint(Sketcher.Constraint("Equal", 0, 1))
sketch8.addConstraint(Sketcher.Constraint("Equal", 1, 2))
sketch8.addConstraint(Sketcher.Constraint("Equal", 2, 3))
sketch8.addConstraint(Sketcher.Constraint("Equal", 3, 4))
sketch8.addConstraint(Sketcher.Constraint("Equal", 4, 5))
sketch8.addConstraint(Sketcher.Constraint("Equal", 5, 6))
sketch8.addConstraint(Sketcher.Constraint("Equal", 6, 7))
sketch8.addConstraint(Sketcher.Constraint("Horizontal", 0, 3, 1, 3))
sketch8.addConstraint(Sketcher.Constraint("Horizontal", 1, 3, 2, 3))
sketch8.addConstraint(Sketcher.Constraint("Horizontal", 2, 3, 3, 3))
sketch8.addConstraint(Sketcher.Constraint("Horizontal", 4, 3, 5, 3))
sketch8.addConstraint(Sketcher.Constraint("Horizontal", 5, 3, 6, 3))
sketch8.addConstraint(Sketcher.Constraint("Horizontal", 6, 3, 7, 3))
sketch8.addConstraint(Sketcher.Constraint("Vertical", 3, 3, 4, 3))
sketch8.addConstraint(Sketcher.Constraint("Vertical", 2, 3, 5, 3))
sketch8.addConstraint(Sketcher.Constraint("Vertical", 1, 3, 6, 3))
sketch8.addConstraint(Sketcher.Constraint("Vertical", 0, 3, 7, 3))
sketch8.addConstraint(Sketcher.Constraint("Diameter", 0, Q("3.2 mm")))
sketch8.addConstraint(Sketcher.Constraint("DistanceX", 0, 3, 1, 3, Q("16 mm")))
sketch8.addConstraint(Sketcher.Constraint("DistanceX", 1, 3, 2, 3, Q("20 mm")))
sketch8.addConstraint(Sketcher.Constraint("DistanceX", 2, 3, 3, 3, Q("16 mm")))
sketch8.addConstraint(Sketcher.Constraint("DistanceY", 3, 3, 4, 3, Q("56 mm")))
sketch8.addConstraint(Sketcher.Constraint("DistanceX", 0, 3, -1, 1, Q("25.905462 mm")))
sketch8.addConstraint(Sketcher.Constraint("DistanceY", 0, 3, -1, 1, Q("31.403373 mm")))
pocket6 = body.newObject("PartDesign::Pocket", "Pocket005")
pocket6.Profile = sketch8
pocket6.Length = 18

# Sketch on XZ plane
sketch9 = body.newObject("Sketcher::SketchObject", "Sketch008")
sketch9.AttachmentSupport = (doc.getObject("XZ_Plane"), [""])
sketch9.MapMode = "FlatFace"
sketch9.AttachmentOffset = App.Placement(V(0, 0, -5.5), App.Rotation())
sketch9.addGeometry(Part.LineSegment(V(-3.8, 21.9, 0), V(-3.8, 28.2, 0)), False)
sketch9.addGeometry(Part.LineSegment(V(-3.8, 28.2, 0), V(2.8, 28.2, 0)), False)
sketch9.addGeometry(Part.LineSegment(V(2.8, 28.2, 0), V(2.8, 21.9, 0)), False)
sketch9.addGeometry(Part.LineSegment(V(2.8, 21.9, 0), V(-3.8, 21.9, 0)), False)
sketch9.addGeometry(Part.LineSegment(V(17.4, 16.4, 0), V(17.4, 21.9, 0)), False)
sketch9.addGeometry(Part.LineSegment(V(17.4, 21.9, 0), V(23.4, 21.9, 0)), False)
sketch9.addGeometry(Part.LineSegment(V(23.4, 21.9, 0), V(23.4, 16.4, 0)), False)
sketch9.addGeometry(Part.LineSegment(V(23.4, 16.4, 0), V(17.4, 16.4, 0)), False)
sketch9.addGeometry(Part.LineSegment(V(-25.2, 16.4, 0), V(-25.2, 21.9, 0)), False)
sketch9.addGeometry(Part.LineSegment(V(-25.2, 21.9, 0), V(-17.4, 21.9, 0)), False)
sketch9.addGeometry(Part.LineSegment(V(-17.4, 21.9, 0), V(-17.4, 16.4, 0)), False)
sketch9.addGeometry(Part.LineSegment(V(-17.4, 16.4, 0), V(-25.2, 16.4, 0)), False)
sketch9.addGeometry(Part.LineSegment(V(-23.3, -28.8, 0), V(-23.3, -23.6, 0)), False)
sketch9.addGeometry(Part.LineSegment(V(-23.3, -23.6, 0), V(-18.2, -23.6, 0)), False)
sketch9.addGeometry(Part.LineSegment(V(-18.2, -23.6, 0), V(-18.2, -28.8, 0)), False)
sketch9.addGeometry(Part.LineSegment(V(-18.2, -28.8, 0), V(-23.3, -28.8, 0)), False)
sketch9.addGeometry(Part.LineSegment(V(-2.7, -35, 0), V(-2.7, -29.9, 0)), False)
sketch9.addGeometry(Part.LineSegment(V(-2.7, -29.9, 0), V(2.8, -29.9, 0)), False)
sketch9.addGeometry(Part.LineSegment(V(2.8, -29.9, 0), V(2.8, -35, 0)), False)
sketch9.addGeometry(Part.LineSegment(V(2.8, -35, 0), V(-2.7, -35, 0)), False)
sketch9.addGeometry(Part.LineSegment(V(18, -28.8, 0), V(18, -23.6, 0)), False)
sketch9.addGeometry(Part.LineSegment(V(18, -23.6, 0), V(22.7, -23.6, 0)), False)
sketch9.addGeometry(Part.LineSegment(V(22.7, -23.6, 0), V(22.7, -28.8, 0)), False)
sketch9.addGeometry(Part.LineSegment(V(22.7, -28.8, 0), V(18, -28.8, 0)), False)
sketch9.addConstraint(Sketcher.Constraint("Coincident", 0, 2, 1, 1))
sketch9.addConstraint(Sketcher.Constraint("Coincident", 1, 2, 2, 1))
sketch9.addConstraint(Sketcher.Constraint("Coincident", 2, 2, 3, 1))
sketch9.addConstraint(Sketcher.Constraint("Coincident", 3, 2, 0, 1))
sketch9.addConstraint(Sketcher.Constraint("Coincident", 4, 2, 5, 1))
sketch9.addConstraint(Sketcher.Constraint("Coincident", 5, 2, 6, 1))
sketch9.addConstraint(Sketcher.Constraint("Coincident", 6, 2, 7, 1))
sketch9.addConstraint(Sketcher.Constraint("Coincident", 7, 2, 4, 1))
sketch9.addConstraint(Sketcher.Constraint("Coincident", 8, 2, 9, 1))
sketch9.addConstraint(Sketcher.Constraint("Coincident", 9, 2, 10, 1))
sketch9.addConstraint(Sketcher.Constraint("Coincident", 10, 2, 11, 1))
sketch9.addConstraint(Sketcher.Constraint("Coincident", 11, 2, 8, 1))
sketch9.addConstraint(Sketcher.Constraint("Coincident", 12, 2, 13, 1))
sketch9.addConstraint(Sketcher.Constraint("Coincident", 13, 2, 14, 1))
sketch9.addConstraint(Sketcher.Constraint("Coincident", 14, 2, 15, 1))
sketch9.addConstraint(Sketcher.Constraint("Coincident", 15, 2, 12, 1))
sketch9.addConstraint(Sketcher.Constraint("Coincident", 16, 2, 17, 1))
sketch9.addConstraint(Sketcher.Constraint("Coincident", 17, 2, 18, 1))
sketch9.addConstraint(Sketcher.Constraint("Coincident", 18, 2, 19, 1))
sketch9.addConstraint(Sketcher.Constraint("Coincident", 19, 2, 16, 1))
sketch9.addConstraint(Sketcher.Constraint("Coincident", 20, 2, 21, 1))
sketch9.addConstraint(Sketcher.Constraint("Coincident", 21, 2, 22, 1))
sketch9.addConstraint(Sketcher.Constraint("Coincident", 22, 2, 23, 1))
sketch9.addConstraint(Sketcher.Constraint("Coincident", 23, 2, 20, 1))
sketch9.addConstraint(Sketcher.Constraint("Vertical", 0))
sketch9.addConstraint(Sketcher.Constraint("Horizontal", 1))
sketch9.addConstraint(Sketcher.Constraint("Vertical", 2))
sketch9.addConstraint(Sketcher.Constraint("Horizontal", 3))
sketch9.addConstraint(Sketcher.Constraint("Vertical", 4))
sketch9.addConstraint(Sketcher.Constraint("Horizontal", 5))
sketch9.addConstraint(Sketcher.Constraint("Vertical", 6))
sketch9.addConstraint(Sketcher.Constraint("Horizontal", 7))
sketch9.addConstraint(Sketcher.Constraint("Vertical", 8))
sketch9.addConstraint(Sketcher.Constraint("Horizontal", 9))
sketch9.addConstraint(Sketcher.Constraint("Vertical", 10))
sketch9.addConstraint(Sketcher.Constraint("Horizontal", 11))
sketch9.addConstraint(Sketcher.Constraint("Vertical", 12))
sketch9.addConstraint(Sketcher.Constraint("Horizontal", 13))
sketch9.addConstraint(Sketcher.Constraint("Vertical", 14))
sketch9.addConstraint(Sketcher.Constraint("Horizontal", 15))
sketch9.addConstraint(Sketcher.Constraint("Vertical", 16))
sketch9.addConstraint(Sketcher.Constraint("Horizontal", 17))
sketch9.addConstraint(Sketcher.Constraint("Vertical", 18))
sketch9.addConstraint(Sketcher.Constraint("Horizontal", 19))
sketch9.addConstraint(Sketcher.Constraint("Vertical", 20))
sketch9.addConstraint(Sketcher.Constraint("Horizontal", 21))
sketch9.addConstraint(Sketcher.Constraint("Vertical", 22))
sketch9.addConstraint(Sketcher.Constraint("Horizontal", 23))
sketch9.addConstraint(Sketcher.Constraint("Horizontal", 3, 2, 4, 2))
sketch9.addConstraint(Sketcher.Constraint("Horizontal", 5, 2, 8, 2))
sketch9.addConstraint(Sketcher.Constraint("Horizontal", 7, 2, 10, 2))
sketch9.addConstraint(Sketcher.Constraint("Horizontal", 13, 2, 20, 2))
sketch9.addConstraint(Sketcher.Constraint("Horizontal", 15, 2, 22, 2))
sketch9.addConstraint(Sketcher.Constraint("Vertical", 2, 2, 17, 2))
sketch9.addConstraint(Sketcher.Constraint("Equal", 19, 4))
sketch9.addConstraint(Sketcher.Constraint("DistanceX", 5, 1, 5, 2, Q("5.93745 mm")))
sketch9.addConstraint(Sketcher.Constraint("DistanceX", 13, 1, 13, 2, Q("5.131129 mm")))
sketch9.addConstraint(Sketcher.Constraint("DistanceX", 17, 1, 17, 2, Q("5.497638 mm")))
sketch9.addConstraint(Sketcher.Constraint("DistanceX", 21, 1, 21, 2, Q("4.691318 mm")))
sketch9.addConstraint(Sketcher.Constraint("DistanceY", 0, 1, 0, 2, Q("6.303959 mm")))
sketch9.addConstraint(Sketcher.Constraint("DistanceY", 12, 1, 12, 2, Q("5.204431 mm")))
sketch9.addConstraint(Sketcher.Constraint("DistanceX", 12, 2, -1, 1, Q("23.325402 mm")))
sketch9.addConstraint(Sketcher.Constraint("DistanceY", 16, 2, 10, 2, Q("46.291498 mm")))
sketch9.addConstraint(Sketcher.Constraint("DistanceX", 17, 2, 21, 2, Q("19.8648 mm")))
sketch9.addConstraint(Sketcher.Constraint("DistanceX", 1, 1, 1, 2, Q("6.597166 mm")))
sketch9.addConstraint(Sketcher.Constraint("DistanceX", 9, 1, 9, 2, Q("7.769996 mm")))
sketch9.addConstraint(Sketcher.Constraint("DistanceY", 16, 1, 16, 2, Q("5.093096 mm")))
sketch9.addConstraint(Sketcher.Constraint("DistanceX", 0, 2, -1, 1, Q("3.753809 mm")))
sketch9.addConstraint(Sketcher.Constraint("DistanceY", 18, 2, -1, 1, Q("34.996469 mm")))
sketch9.addConstraint(Sketcher.Constraint("DistanceX", 8, 2, 3, 2, Q("21.404139 mm")))
sketch9.addConstraint(Sketcher.Constraint("DistanceY", 12, 2, 11, 2, Q("40.022808 mm")))
sketch9.addConstraint(Sketcher.Constraint("DistanceX", -1, 1, 4, 2, Q("17.430425 mm")))
pad3 = body.newObject("PartDesign::Pad", "Pad002")
pad3.Profile = sketch9
pad3.Length = 3.5

# Sketch on XZ plane
sketch10 = body.newObject("Sketcher::SketchObject", "Sketch009")
sketch10.AttachmentSupport = (doc.getObject("XZ_Plane"), [""])
sketch10.MapMode = "FlatFace"
sketch10.AttachmentOffset = App.Placement(V(0, 0, -2), App.Rotation())
sketch10.addGeometry(Part.LineSegment(V(-24.9, 31.1, 0), V(-24.9, 28.4, 0)), False)
sketch10.addGeometry(Part.LineSegment(V(-24.9, 28.4, 0), V(-11.2, 28.4, 0)), False)
sketch10.addGeometry(Part.LineSegment(V(-11.2, 28.4, 0), V(-11.2, 31.1, 0)), False)
sketch10.addGeometry(Part.LineSegment(V(-11.2, 31.1, 0), V(-24.9, 31.1, 0)), False)
sketch10.addGeometry(Part.LineSegment(V(13.1, 31.1, 0), V(13.1, 28, 0)), False)
sketch10.addGeometry(Part.LineSegment(V(13.1, 28, 0), V(24, 28, 0)), False)
sketch10.addGeometry(Part.LineSegment(V(24, 28, 0), V(24, 31.1, 0)), False)
sketch10.addGeometry(Part.LineSegment(V(24, 31.1, 0), V(13.1, 31.1, 0)), False)
sketch10.addGeometry(Part.LineSegment(V(-23.8, -34.8, 0), V(-23.8, -37.9, 0)), False)
sketch10.addGeometry(Part.LineSegment(V(-23.8, -37.9, 0), V(-12.9, -37.9, 0)), False)
sketch10.addGeometry(Part.LineSegment(V(-12.9, -37.9, 0), V(-12.9, -34.8, 0)), False)
sketch10.addGeometry(Part.LineSegment(V(-12.9, -34.8, 0), V(-23.8, -34.8, 0)), False)
sketch10.addGeometry(Part.LineSegment(V(13.1, -34.8, 0), V(13.1, -37.9, 0)), False)
sketch10.addGeometry(Part.LineSegment(V(13.1, -37.9, 0), V(25.1, -37.9, 0)), False)
sketch10.addGeometry(Part.LineSegment(V(25.1, -37.9, 0), V(25.1, -34.8, 0)), False)
sketch10.addGeometry(Part.LineSegment(V(25.1, -34.8, 0), V(13.1, -34.8, 0)), False)
sketch10.addConstraint(Sketcher.Constraint("Coincident", 0, 2, 1, 1))
sketch10.addConstraint(Sketcher.Constraint("Coincident", 1, 2, 2, 1))
sketch10.addConstraint(Sketcher.Constraint("Coincident", 2, 2, 3, 1))
sketch10.addConstraint(Sketcher.Constraint("Coincident", 3, 2, 0, 1))
sketch10.addConstraint(Sketcher.Constraint("Coincident", 4, 2, 5, 1))
sketch10.addConstraint(Sketcher.Constraint("Coincident", 5, 2, 6, 1))
sketch10.addConstraint(Sketcher.Constraint("Coincident", 6, 2, 7, 1))
sketch10.addConstraint(Sketcher.Constraint("Coincident", 7, 2, 4, 1))
sketch10.addConstraint(Sketcher.Constraint("Coincident", 8, 2, 9, 1))
sketch10.addConstraint(Sketcher.Constraint("Coincident", 9, 2, 10, 1))
sketch10.addConstraint(Sketcher.Constraint("Coincident", 10, 2, 11, 1))
sketch10.addConstraint(Sketcher.Constraint("Coincident", 11, 2, 8, 1))
sketch10.addConstraint(Sketcher.Constraint("Coincident", 12, 2, 13, 1))
sketch10.addConstraint(Sketcher.Constraint("Coincident", 13, 2, 14, 1))
sketch10.addConstraint(Sketcher.Constraint("Coincident", 14, 2, 15, 1))
sketch10.addConstraint(Sketcher.Constraint("Coincident", 15, 2, 12, 1))
sketch10.addConstraint(Sketcher.Constraint("Vertical", 0))
sketch10.addConstraint(Sketcher.Constraint("Horizontal", 1))
sketch10.addConstraint(Sketcher.Constraint("Vertical", 2))
sketch10.addConstraint(Sketcher.Constraint("Horizontal", 3))
sketch10.addConstraint(Sketcher.Constraint("Vertical", 4))
sketch10.addConstraint(Sketcher.Constraint("Horizontal", 5))
sketch10.addConstraint(Sketcher.Constraint("Vertical", 6))
sketch10.addConstraint(Sketcher.Constraint("Horizontal", 7))
sketch10.addConstraint(Sketcher.Constraint("Vertical", 8))
sketch10.addConstraint(Sketcher.Constraint("Horizontal", 9))
sketch10.addConstraint(Sketcher.Constraint("Vertical", 10))
sketch10.addConstraint(Sketcher.Constraint("Horizontal", 11))
sketch10.addConstraint(Sketcher.Constraint("Vertical", 12))
sketch10.addConstraint(Sketcher.Constraint("Horizontal", 13))
sketch10.addConstraint(Sketcher.Constraint("Vertical", 14))
sketch10.addConstraint(Sketcher.Constraint("Horizontal", 15))
sketch10.addConstraint(Sketcher.Constraint("Horizontal", 3, 2, 6, 2))
sketch10.addConstraint(Sketcher.Constraint("Horizontal", 9, 2, 12, 2))
sketch10.addConstraint(Sketcher.Constraint("Horizontal", 11, 2, 14, 2))
sketch10.addConstraint(Sketcher.Constraint("Vertical", 7, 2, 12, 2))
sketch10.addConstraint(Sketcher.Constraint("DistanceX", 13, 1, 13, 2, Q("12 mm")))
sketch10.addConstraint(Sketcher.Constraint("DistanceX", 0, 2, 4, 2, Q("38 mm")))
sketch10.addConstraint(Sketcher.Constraint("DistanceY", 8, 2, 3, 2, Q("69 mm")))
sketch10.addConstraint(Sketcher.Constraint("DistanceX", 0, 2, 9, 2, Q("12 mm")))
sketch10.addConstraint(Sketcher.Constraint("DistanceY", 0, 2, 0, 1, Q("2.686711 mm")))
sketch10.addConstraint(Sketcher.Constraint("DistanceY", 4, 2, 4, 1, Q("3.141049 mm")))
sketch10.addConstraint(Sketcher.Constraint("DistanceX", 1, 1, 1, 2, Q("13.673674 mm")))
sketch10.addConstraint(Sketcher.Constraint("DistanceX", 5, 1, 5, 2, Q("10.911645 mm")))
sketch10.addConstraint(Sketcher.Constraint("DistanceX", 9, 1, 9, 2, Q("10.921694 mm")))
sketch10.addConstraint(Sketcher.Constraint("DistanceY", 8, 2, 8, 1, Q("3.054325 mm")))
sketch10.addConstraint(Sketcher.Constraint("DistanceX", 0, 2, -1, 1, Q("24.905462 mm")))
sketch10.addConstraint(Sketcher.Constraint("DistanceY", -1, 1, 4, 2, Q("27.955578 mm")))
pad4 = body.newObject("PartDesign::Pad", "Pad003")
pad4.Profile = sketch10
pad4.Length = 3.5
pad4.Reversed = True

doc.recompute()
